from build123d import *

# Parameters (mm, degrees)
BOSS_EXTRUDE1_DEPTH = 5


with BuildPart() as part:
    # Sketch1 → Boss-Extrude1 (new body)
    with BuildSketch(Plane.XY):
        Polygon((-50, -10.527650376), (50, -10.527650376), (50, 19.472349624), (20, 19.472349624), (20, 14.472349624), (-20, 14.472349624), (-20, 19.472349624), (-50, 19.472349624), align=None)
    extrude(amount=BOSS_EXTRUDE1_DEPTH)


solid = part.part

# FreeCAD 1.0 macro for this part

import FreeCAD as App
import Part
import Sketcher
from FreeCAD import Vector
Q = App.Units.Quantity


def add_polygon(sketch, points):
    """Adds a closed chain of lines whose ends are joined by coincident constraints."""
    first, n = sketch.GeometryCount, len(points)
    for a, b in zip(points, points[1:] + points[:1]):
        sketch.addGeometry(Part.LineSegment(App.Vector(*a, 0), App.Vector(*b, 0)), False)
    for i in range(n):
        sketch.addConstraint(Sketcher.Constraint("Coincident", first + i, 2, first + (i + 1) % n, 1))

doc = App.newDocument("Part")
body = doc.addObject("PartDesign::Body", "Body")

# Sketch on XY plane
sketch1 = body.newObject("Sketcher::SketchObject", "Sketch")
sketch1.AttachmentSupport = (doc.getObject("XY_Plane"), [""])
sketch1.MapMode = "FlatFace"
add_polygon(sketch1, [(-50, -11), (50, -11), (50, 19), (20, 19), (20, 14), (-20, 14), (-20, 19), (-50, 19)])  # lines 0-7
sketch1.addConstraint(Sketcher.Constraint("Horizontal", 0))
sketch1.addConstraint(Sketcher.Constraint("Vertical", 1))
sketch1.addConstraint(Sketcher.Constraint("Horizontal", 2))
sketch1.addConstraint(Sketcher.Constraint("Vertical", 3))
sketch1.addConstraint(Sketcher.Constraint("Horizontal", 4))
sketch1.addConstraint(Sketcher.Constraint("Vertical", 5))
sketch1.addConstraint(Sketcher.Constraint("Horizontal", 6))
sketch1.addConstraint(Sketcher.Constraint("Vertical", 7))
sketch1.addConstraint(Sketcher.Constraint("Symmetric", 2, 2, 5, 2, -2))
sketch1.addConstraint(Sketcher.Constraint("Equal", 2, 6))
sketch1.addConstraint(Sketcher.Constraint("Equal", 6, 1))
sketch1.addConstraint(Sketcher.Constraint("DistanceX", 0, 1, 0, 2, Q("100 mm")))
sketch1.addConstraint(Sketcher.Constraint("DistanceX", 2, 2, 2, 1, Q("30 mm")))
sketch1.addConstraint(Sketcher.Constraint("DistanceY", 3, 2, 3, 1, Q("5 mm")))
sketch1.addConstraint(Sketcher.Constraint("DistanceY", 0, 2, -1, 1, Q("10.52765 mm")))
pad1 = body.newObject("PartDesign::Pad", "Pad")
pad1.Profile = sketch1
pad1.Length = 5

doc.recompute()
